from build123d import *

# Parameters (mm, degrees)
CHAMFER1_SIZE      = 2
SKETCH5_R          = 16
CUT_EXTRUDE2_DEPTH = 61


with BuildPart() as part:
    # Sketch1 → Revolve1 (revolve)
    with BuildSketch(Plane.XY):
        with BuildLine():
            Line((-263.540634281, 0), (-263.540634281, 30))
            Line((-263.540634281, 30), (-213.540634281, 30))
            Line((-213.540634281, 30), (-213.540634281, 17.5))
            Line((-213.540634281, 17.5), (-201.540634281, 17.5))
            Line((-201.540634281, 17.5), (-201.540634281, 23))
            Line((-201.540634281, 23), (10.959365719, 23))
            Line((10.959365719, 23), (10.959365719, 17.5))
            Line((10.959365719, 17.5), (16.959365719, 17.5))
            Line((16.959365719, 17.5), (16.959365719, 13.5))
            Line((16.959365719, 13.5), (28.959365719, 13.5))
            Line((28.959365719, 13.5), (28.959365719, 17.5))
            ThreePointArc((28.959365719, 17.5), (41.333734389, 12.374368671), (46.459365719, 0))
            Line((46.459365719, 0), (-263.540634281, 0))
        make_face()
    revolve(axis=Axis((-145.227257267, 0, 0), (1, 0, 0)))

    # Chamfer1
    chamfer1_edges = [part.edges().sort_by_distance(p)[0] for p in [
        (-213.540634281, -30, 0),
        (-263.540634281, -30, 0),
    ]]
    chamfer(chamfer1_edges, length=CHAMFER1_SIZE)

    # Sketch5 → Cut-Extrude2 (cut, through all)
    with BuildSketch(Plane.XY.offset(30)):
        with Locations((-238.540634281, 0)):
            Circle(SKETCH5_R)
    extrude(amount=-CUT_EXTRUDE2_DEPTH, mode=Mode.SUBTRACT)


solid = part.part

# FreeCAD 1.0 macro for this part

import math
import FreeCAD as App
import Part
import Sketcher
from FreeCAD import Vector


def edges_at(feature, points):
    """Names of the edges that pass closest to the given points."""
    edges = feature.Shape.Edges
    near = lambda p: min(range(len(edges)), key=lambda i: edges[i].distToShape(Part.Vertex(*p))[0])
    return sorted({f"Edge{near(p) + 1}" for p in points})

doc = App.newDocument("Part")
body = doc.addObject("PartDesign::Body", "Body")

# Sketch on XY plane
sketch1 = body.newObject("Sketcher::SketchObject", "Sketch")
sketch1.AttachmentSupport = (doc.getObject("XY_Plane"), [""])
sketch1.MapMode = "FlatFace"
sketch1.addGeometry([
    Part.LineSegment(Vector(-263.5, 30, 0), Vector(-263.5, 0, 0)),  # 0
    Part.LineSegment(Vector(-263.5, 0, 0), Vector(46.5, 0, 0)),  # 1
    Part.ArcOfCircle(Part.Circle(Vector(29, 0, 0), Vector(0, 0, 1), 17.5), math.radians(0), math.radians(90)),  # 2
    Part.LineSegment(Vector(29, 17.5, 0), Vector(29, 13.5, 0)),  # 3
    Part.LineSegment(Vector(29, 13.5, 0), Vector(17, 13.5, 0)),  # 4
    Part.LineSegment(Vector(17, 13.5, 0), Vector(17, 17.5, 0)),  # 5
    Part.LineSegment(Vector(17, 17.5, 0), Vector(11, 17.5, 0)),  # 6
    Part.LineSegment(Vector(11, 17.5, 0), Vector(11, 23, 0)),  # 7
    Part.LineSegment(Vector(11, 23, 0), Vector(-201.5, 23, 0)),  # 8
    Part.LineSegment(Vector(-201.5, 23, 0), Vector(-201.5, 17.5, 0)),  # 9
    Part.LineSegment(Vector(-201.5, 17.5, 0), Vector(-213.5, 17.5, 0)),  # 10
    Part.LineSegment(Vector(-213.5, 17.5, 0), Vector(-213.5, 30, 0)),  # 11
    Part.LineSegment(Vector(-213.5, 30, 0), Vector(-263.5, 30, 0)),  # 12
], False)
sketch1.addConstraint([
    Sketcher.Constraint("Coincident", 0, 2, 1, 1),
    Sketcher.Constraint("Coincident", 1, 2, 2, 1),
    Sketcher.Constraint("Coincident", 2, 2, 3, 1),
    Sketcher.Constraint("Coincident", 3, 2, 4, 1),
    Sketcher.Constraint("Coincident", 4, 2, 5, 1),
    Sketcher.Constraint("Coincident", 5, 2, 6, 1),
    Sketcher.Constraint("Coincident", 6, 2, 7, 1),
    Sketcher.Constraint("Coincident", 7, 2, 8, 1),
    Sketcher.Constraint("Coincident", 8, 2, 9, 1),
    Sketcher.Constraint("Coincident", 9, 2, 10, 1),
    Sketcher.Constraint("Coincident", 10, 2, 11, 1),
    Sketcher.Constraint("Coincident", 11, 2, 12, 1),
    Sketcher.Constraint("Coincident", 12, 2, 0, 1),
    Sketcher.Constraint("Vertical", 0),
    Sketcher.Constraint("Horizontal", 1),
    Sketcher.Constraint("Vertical", 3),
    Sketcher.Constraint("Horizontal", 4),
    Sketcher.Constraint("Vertical", 5),
    Sketcher.Constraint("Horizontal", 6),
    Sketcher.Constraint("Vertical", 7),
    Sketcher.Constraint("Horizontal", 8),
    Sketcher.Constraint("Vertical", 9),
    Sketcher.Constraint("Horizontal", 10),
    Sketcher.Constraint("Vertical", 11),
    Sketcher.Constraint("Horizontal", 12),
    Sketcher.Constraint("PointOnObject", 2, 3, -1),
    Sketcher.Constraint("PointOnObject", 0, 2, -1),
    Sketcher.Constraint("Horizontal", 2, 2, 5, 2),
    Sketcher.Constraint("Horizontal", 6, 2, 9, 2),
    Sketcher.Constraint("Equal", 4, 10),
    Sketcher.Constraint("Radius", 2, 17.5),
    Sketcher.Constraint("DistanceX", 1, 1, 1, 2, 310.0),
    Sketcher.Constraint("DistanceX", 4, 2, 4, 1, 12.0),
    Sketcher.Constraint("DistanceX", 6, 2, 6, 1, 6.0),
    Sketcher.Constraint("DistanceX", 12, 2, 12, 1, 50.0),
    Sketcher.Constraint("DistanceY", 0, 2, 0, 1, 30.0),
    Sketcher.Constraint("DistanceY", 3, 2, 3, 1, 4.0),
    Sketcher.Constraint("DistanceX", 8, 2, 8, 1, 212.5),
    Sketcher.Constraint("DistanceY", 7, 1, 7, 2, 5.5),
    Sketcher.Constraint("DistanceX", -1, 1, 2, 3, 28.959366),
])
revolution = body.newObject("PartDesign::Revolution", "Revolution")
revolution.Profile = sketch1
revolution.ReferenceAxis = (sketch1, ["H_Axis"])
revolution.Angle = 360
doc.recompute()

chamfer = body.newObject("PartDesign::Chamfer", "Chamfer")
chamfer.Base = (revolution, edges_at(revolution, [(-213.541, -30, 0), (-263.541, -30, 0)]))
chamfer.Size = 2

# Sketch on XY plane
sketch2 = body.newObject("Sketcher::SketchObject", "Sketch001")
sketch2.AttachmentSupport = (doc.getObject("XY_Plane"), [""])
sketch2.MapMode = "FlatFace"
sketch2.AttachmentOffset = App.Placement(Vector(0, 0, 30), App.Rotation())
sketch2.addGeometry(Part.Circle(Vector(-239, 0, 0), Vector(0, 0, 1), 16), False)
sketch2.addConstraint([
    Sketcher.Constraint("PointOnObject", 0, 3, -1),
    Sketcher.Constraint("Diameter", 0, 32.0),
    Sketcher.Constraint("DistanceX", 0, 3, -1, 1, 238.540634),
])
pocket1 = body.newObject("PartDesign::Pocket", "Pocket")
pocket1.Profile = sketch2
pocket1.Type = "ThroughAll"

doc.recompute()
